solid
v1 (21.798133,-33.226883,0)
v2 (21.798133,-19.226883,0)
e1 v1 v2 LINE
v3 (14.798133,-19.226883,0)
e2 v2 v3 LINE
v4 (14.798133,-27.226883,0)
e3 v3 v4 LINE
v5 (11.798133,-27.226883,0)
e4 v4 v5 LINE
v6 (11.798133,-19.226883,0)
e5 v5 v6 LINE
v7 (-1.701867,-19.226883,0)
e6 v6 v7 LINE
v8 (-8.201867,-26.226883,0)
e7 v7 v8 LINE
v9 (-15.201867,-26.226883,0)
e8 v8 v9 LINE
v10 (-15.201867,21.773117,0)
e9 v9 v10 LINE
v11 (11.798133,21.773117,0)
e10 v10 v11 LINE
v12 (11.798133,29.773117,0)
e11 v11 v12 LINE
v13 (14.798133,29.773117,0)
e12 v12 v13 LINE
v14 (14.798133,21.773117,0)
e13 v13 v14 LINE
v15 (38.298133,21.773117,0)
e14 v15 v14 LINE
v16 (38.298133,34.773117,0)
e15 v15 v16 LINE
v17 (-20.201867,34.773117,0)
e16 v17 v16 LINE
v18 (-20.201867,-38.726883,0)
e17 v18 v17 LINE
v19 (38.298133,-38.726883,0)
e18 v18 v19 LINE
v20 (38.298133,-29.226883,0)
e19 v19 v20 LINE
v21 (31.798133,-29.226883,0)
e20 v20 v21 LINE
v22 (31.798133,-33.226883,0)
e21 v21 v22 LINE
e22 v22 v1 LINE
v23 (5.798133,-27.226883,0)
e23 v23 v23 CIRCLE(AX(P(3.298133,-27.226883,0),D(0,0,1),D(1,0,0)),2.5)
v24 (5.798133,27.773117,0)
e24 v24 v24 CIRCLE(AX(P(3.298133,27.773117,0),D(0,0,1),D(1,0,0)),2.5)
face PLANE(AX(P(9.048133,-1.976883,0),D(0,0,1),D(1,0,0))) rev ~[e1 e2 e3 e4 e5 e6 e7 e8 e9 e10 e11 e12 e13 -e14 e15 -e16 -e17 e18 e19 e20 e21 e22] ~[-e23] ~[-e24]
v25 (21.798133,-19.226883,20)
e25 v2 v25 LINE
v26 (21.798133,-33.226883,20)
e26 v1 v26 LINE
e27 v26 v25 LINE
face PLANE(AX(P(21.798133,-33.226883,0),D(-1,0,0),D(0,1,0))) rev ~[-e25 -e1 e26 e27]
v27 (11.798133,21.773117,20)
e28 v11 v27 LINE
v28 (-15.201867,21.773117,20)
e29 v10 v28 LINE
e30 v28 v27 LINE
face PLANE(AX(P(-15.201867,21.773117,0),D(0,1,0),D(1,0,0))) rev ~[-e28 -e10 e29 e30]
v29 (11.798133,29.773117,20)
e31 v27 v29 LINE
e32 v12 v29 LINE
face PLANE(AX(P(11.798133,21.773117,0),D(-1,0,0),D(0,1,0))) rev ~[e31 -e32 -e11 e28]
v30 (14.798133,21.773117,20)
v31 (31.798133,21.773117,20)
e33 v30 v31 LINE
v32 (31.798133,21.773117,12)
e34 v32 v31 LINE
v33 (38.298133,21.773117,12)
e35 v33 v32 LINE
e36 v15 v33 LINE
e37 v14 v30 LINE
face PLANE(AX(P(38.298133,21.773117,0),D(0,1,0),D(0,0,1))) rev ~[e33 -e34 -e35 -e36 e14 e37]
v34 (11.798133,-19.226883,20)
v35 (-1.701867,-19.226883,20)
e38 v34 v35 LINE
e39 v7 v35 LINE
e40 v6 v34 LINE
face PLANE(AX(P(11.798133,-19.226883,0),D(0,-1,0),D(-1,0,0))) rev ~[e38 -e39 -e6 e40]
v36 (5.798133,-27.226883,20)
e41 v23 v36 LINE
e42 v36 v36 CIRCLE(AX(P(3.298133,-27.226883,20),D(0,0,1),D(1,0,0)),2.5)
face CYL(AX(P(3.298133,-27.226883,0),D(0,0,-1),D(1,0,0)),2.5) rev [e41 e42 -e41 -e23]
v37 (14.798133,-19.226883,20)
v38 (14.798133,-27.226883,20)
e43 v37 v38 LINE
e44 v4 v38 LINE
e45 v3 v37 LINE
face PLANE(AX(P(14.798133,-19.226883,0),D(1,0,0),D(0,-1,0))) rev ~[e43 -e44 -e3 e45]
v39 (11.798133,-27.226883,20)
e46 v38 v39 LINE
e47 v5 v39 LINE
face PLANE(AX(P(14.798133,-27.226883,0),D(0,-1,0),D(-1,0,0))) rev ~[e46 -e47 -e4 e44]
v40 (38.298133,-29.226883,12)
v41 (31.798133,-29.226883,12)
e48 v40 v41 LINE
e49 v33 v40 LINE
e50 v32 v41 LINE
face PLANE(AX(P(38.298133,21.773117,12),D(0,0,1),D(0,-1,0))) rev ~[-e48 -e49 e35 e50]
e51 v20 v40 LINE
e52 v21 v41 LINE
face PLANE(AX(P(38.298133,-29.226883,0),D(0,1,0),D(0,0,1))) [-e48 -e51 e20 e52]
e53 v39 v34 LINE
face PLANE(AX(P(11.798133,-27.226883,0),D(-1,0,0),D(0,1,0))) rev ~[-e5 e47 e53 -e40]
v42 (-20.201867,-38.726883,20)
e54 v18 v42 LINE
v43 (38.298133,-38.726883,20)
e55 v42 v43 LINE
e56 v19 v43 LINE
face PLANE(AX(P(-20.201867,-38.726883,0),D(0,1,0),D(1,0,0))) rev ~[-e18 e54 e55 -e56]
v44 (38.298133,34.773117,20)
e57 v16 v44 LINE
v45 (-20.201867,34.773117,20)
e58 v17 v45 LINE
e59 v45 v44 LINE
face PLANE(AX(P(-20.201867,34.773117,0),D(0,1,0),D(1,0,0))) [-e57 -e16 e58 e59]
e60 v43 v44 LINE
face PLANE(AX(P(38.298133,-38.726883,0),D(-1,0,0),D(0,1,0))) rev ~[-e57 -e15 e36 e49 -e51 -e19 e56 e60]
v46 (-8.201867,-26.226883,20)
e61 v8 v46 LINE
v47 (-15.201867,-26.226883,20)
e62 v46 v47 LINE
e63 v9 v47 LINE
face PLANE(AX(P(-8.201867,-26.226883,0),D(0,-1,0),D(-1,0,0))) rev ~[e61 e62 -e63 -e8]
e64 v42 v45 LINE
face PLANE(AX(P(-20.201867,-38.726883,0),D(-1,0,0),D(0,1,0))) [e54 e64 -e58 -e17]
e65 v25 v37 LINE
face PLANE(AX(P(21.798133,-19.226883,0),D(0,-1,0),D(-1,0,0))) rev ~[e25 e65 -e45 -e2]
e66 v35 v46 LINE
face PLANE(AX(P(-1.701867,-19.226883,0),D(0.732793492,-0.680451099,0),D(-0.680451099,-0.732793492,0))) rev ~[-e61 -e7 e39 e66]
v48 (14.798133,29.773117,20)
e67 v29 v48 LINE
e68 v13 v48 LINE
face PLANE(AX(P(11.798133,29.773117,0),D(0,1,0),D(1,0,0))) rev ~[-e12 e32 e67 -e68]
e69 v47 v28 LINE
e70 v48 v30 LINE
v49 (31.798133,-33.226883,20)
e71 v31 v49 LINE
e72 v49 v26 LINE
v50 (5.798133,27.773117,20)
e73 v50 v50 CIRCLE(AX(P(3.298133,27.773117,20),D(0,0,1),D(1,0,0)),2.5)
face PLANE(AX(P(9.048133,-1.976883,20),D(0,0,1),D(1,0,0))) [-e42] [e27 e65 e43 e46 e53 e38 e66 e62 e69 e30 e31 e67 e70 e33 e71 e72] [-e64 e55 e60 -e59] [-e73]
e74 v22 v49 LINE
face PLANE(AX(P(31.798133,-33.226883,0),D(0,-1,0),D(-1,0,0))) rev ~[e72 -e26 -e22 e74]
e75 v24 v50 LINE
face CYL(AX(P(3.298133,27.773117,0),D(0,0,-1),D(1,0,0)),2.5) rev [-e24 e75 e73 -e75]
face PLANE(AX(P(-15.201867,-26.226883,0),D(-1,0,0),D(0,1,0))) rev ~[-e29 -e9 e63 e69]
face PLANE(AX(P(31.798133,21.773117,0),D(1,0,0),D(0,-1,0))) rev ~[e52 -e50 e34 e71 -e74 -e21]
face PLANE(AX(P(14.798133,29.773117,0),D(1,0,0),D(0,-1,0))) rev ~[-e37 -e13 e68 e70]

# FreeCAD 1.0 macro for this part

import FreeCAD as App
import Part
import Sketcher
from FreeCAD import Vector


def add_polygon(sketch, points):
    """Adds a closed chain of lines whose ends are joined by coincident constraints."""
    first, n = sketch.GeometryCount, len(points)
    for a, b in zip(points, points[1:] + points[:1]):
        sketch.addGeometry(Part.LineSegment(App.Vector(*a, 0), App.Vector(*b, 0)), False)
    for i in range(n):
        sketch.addConstraint(Sketcher.Constraint("Coincident", first + i, 2, first + (i + 1) % n, 1))

doc = App.newDocument("Part")
body = doc.addObject("PartDesign::Body", "Body")

# Sketch on XY plane
sketch1 = doc.addObject("Sketcher::SketchObject", "Sketch")
body.addObject(sketch1)
sketch1.AttachmentSupport = (doc.XY_Plane, [""])
sketch1.MapMode = "FlatFace"
add_polygon(sketch1, [(-20.2, 34.8), (-20.2, -38.7), (38.3, -38.7), (38.3, 34.8)])  # lines 0-3
sketch1.addGeometry(Part.Circle(Vector(3.3, -27.2, 0), Vector(0, 0, 1), 2.5), False)  # 4
add_polygon(sketch1, [(14.8, 29.8), (14.8, 21.8), (31.8, 21.8), (31.8, -33.2), (21.8, -33.2), (21.8, -19.2), (14.8, -19.2), (14.8, -27.2), (11.8, -27.2), (11.8, -19.2), (-1.7, -19.2), (-8.2, -26.2), (-15.2, -26.2), (-15.2, 21.8), (11.8, 21.8), (11.8, 29.8)])  # lines 5-20
sketch1.addGeometry(Part.Circle(Vector(3.3, 27.8, 0), Vector(0, 0, 1), 2.5), False)  # 21
sketch1.addConstraint([
    Sketcher.Constraint("Vertical", 0),
    Sketcher.Constraint("Horizontal", 1),
    Sketcher.Constraint("Vertical", 2),
    Sketcher.Constraint("Horizontal", 3),
    Sketcher.Constraint("Vertical", 5),
    Sketcher.Constraint("Horizontal", 6),
    Sketcher.Constraint("Vertical", 7),
    Sketcher.Constraint("Horizontal", 8),
    Sketcher.Constraint("Vertical", 9),
    Sketcher.Constraint("Horizontal", 10),
    Sketcher.Constraint("Vertical", 11),
    Sketcher.Constraint("Horizontal", 12),
    Sketcher.Constraint("Vertical", 13),
    Sketcher.Constraint("Horizontal", 14),
    Sketcher.Constraint("Horizontal", 16),
    Sketcher.Constraint("Vertical", 17),
    Sketcher.Constraint("Horizontal", 18),
    Sketcher.Constraint("Vertical", 19),
    Sketcher.Constraint("Horizontal", 20),
    Sketcher.Constraint("Equal", 4, 21),
    Sketcher.Constraint("Horizontal", 4, 3, 11, 2),
    Sketcher.Constraint("Horizontal", 10, 2, 13, 2),
    Sketcher.Constraint("Horizontal", 6, 2, 17, 2),
    Sketcher.Constraint("Vertical", 4, 3, 21, 3),
    Sketcher.Constraint("Vertical", 5, 2, 10, 2),
    Sketcher.Constraint("Vertical", 13, 2, 18, 2),
    Sketcher.Constraint("Equal", 10, 16),
    Sketcher.Constraint("Equal", 5, 11),
    Sketcher.Constraint("Diameter", 4, 5.0),
    Sketcher.Constraint("DistanceX", 6, 1, 6, 2, 17.0),
    Sketcher.Constraint("DistanceX", 8, 2, 8, 1, 10.0),
    Sketcher.Constraint("DistanceX", 12, 2, 12, 1, 3.0),
    Sketcher.Constraint("DistanceX", 18, 1, 18, 2, 27.0),
    Sketcher.Constraint("DistanceY", 5, 2, 5, 1, 8.0),
    Sketcher.Constraint("DistanceY", 7, 2, 7, 1, 55.0),
    Sketcher.Constraint("DistanceY", 9, 1, 9, 2, 14.0),
    Sketcher.Constraint("DistanceY", 17, 1, 17, 2, 48.0),
    Sketcher.Constraint("DistanceX", 1, 1, 1, 2, 58.5),
    Sketcher.Constraint("DistanceX", 14, 2, 14, 1, 13.5),
    Sketcher.Constraint("DistanceY", 0, 2, 0, 1, 73.5),
    Sketcher.Constraint("DistanceY", 4, 3, 21, 3, 55.0),
    Sketcher.Constraint("DistanceX", 4, 3, 1, 2, 35.0),
    Sketcher.Constraint("DistanceY", 21, 3, 2, 2, 7.0),
    Sketcher.Constraint("DistanceX", 3, 2, 5, 2, 35.0),
    Sketcher.Constraint("DistanceX", -1, 1, 4, 3, 3.298133),
    Sketcher.Constraint("DistanceY", 4, 3, -1, 1, 27.226883),
])
pad1 = doc.addObject("PartDesign::Pad", "Pad")
body.addObject(pad1)
pad1.Profile = sketch1
pad1.Length = 20

# Sketch on YZ plane
sketch2 = doc.addObject("Sketcher::SketchObject", "Sketch001")
body.addObject(sketch2)
sketch2.AttachmentSupport = (doc.YZ_Plane, [""])
sketch2.MapMode = "FlatFace"
sketch2.AttachmentOffset = App.Placement(Vector(0, 0, 38.298133), App.Rotation())
add_polygon(sketch2, [(-29, 12), (-29, 0), (22, 0), (22, 12)])  # lines 0-3
sketch2.addConstraint([
    Sketcher.Constraint("Vertical", 0),
    Sketcher.Constraint("Horizontal", 1),
    Sketcher.Constraint("Vertical", 2),
    Sketcher.Constraint("Horizontal", 3),
    Sketcher.Constraint("PointOnObject", 0, 2, -1),
    Sketcher.Constraint("DistanceX", 1, 1, 1, 2, 51.0),
    Sketcher.Constraint("DistanceY", 0, 2, 0, 1, 12.0),
    Sketcher.Constraint("DistanceX", 0, 2, -1, 1, 29.226883),
])
pocket1 = doc.addObject("PartDesign::Pocket", "Pocket")
body.addObject(pocket1)
pocket1.Profile = sketch2
pocket1.Length = 6.5

doc.recompute()
